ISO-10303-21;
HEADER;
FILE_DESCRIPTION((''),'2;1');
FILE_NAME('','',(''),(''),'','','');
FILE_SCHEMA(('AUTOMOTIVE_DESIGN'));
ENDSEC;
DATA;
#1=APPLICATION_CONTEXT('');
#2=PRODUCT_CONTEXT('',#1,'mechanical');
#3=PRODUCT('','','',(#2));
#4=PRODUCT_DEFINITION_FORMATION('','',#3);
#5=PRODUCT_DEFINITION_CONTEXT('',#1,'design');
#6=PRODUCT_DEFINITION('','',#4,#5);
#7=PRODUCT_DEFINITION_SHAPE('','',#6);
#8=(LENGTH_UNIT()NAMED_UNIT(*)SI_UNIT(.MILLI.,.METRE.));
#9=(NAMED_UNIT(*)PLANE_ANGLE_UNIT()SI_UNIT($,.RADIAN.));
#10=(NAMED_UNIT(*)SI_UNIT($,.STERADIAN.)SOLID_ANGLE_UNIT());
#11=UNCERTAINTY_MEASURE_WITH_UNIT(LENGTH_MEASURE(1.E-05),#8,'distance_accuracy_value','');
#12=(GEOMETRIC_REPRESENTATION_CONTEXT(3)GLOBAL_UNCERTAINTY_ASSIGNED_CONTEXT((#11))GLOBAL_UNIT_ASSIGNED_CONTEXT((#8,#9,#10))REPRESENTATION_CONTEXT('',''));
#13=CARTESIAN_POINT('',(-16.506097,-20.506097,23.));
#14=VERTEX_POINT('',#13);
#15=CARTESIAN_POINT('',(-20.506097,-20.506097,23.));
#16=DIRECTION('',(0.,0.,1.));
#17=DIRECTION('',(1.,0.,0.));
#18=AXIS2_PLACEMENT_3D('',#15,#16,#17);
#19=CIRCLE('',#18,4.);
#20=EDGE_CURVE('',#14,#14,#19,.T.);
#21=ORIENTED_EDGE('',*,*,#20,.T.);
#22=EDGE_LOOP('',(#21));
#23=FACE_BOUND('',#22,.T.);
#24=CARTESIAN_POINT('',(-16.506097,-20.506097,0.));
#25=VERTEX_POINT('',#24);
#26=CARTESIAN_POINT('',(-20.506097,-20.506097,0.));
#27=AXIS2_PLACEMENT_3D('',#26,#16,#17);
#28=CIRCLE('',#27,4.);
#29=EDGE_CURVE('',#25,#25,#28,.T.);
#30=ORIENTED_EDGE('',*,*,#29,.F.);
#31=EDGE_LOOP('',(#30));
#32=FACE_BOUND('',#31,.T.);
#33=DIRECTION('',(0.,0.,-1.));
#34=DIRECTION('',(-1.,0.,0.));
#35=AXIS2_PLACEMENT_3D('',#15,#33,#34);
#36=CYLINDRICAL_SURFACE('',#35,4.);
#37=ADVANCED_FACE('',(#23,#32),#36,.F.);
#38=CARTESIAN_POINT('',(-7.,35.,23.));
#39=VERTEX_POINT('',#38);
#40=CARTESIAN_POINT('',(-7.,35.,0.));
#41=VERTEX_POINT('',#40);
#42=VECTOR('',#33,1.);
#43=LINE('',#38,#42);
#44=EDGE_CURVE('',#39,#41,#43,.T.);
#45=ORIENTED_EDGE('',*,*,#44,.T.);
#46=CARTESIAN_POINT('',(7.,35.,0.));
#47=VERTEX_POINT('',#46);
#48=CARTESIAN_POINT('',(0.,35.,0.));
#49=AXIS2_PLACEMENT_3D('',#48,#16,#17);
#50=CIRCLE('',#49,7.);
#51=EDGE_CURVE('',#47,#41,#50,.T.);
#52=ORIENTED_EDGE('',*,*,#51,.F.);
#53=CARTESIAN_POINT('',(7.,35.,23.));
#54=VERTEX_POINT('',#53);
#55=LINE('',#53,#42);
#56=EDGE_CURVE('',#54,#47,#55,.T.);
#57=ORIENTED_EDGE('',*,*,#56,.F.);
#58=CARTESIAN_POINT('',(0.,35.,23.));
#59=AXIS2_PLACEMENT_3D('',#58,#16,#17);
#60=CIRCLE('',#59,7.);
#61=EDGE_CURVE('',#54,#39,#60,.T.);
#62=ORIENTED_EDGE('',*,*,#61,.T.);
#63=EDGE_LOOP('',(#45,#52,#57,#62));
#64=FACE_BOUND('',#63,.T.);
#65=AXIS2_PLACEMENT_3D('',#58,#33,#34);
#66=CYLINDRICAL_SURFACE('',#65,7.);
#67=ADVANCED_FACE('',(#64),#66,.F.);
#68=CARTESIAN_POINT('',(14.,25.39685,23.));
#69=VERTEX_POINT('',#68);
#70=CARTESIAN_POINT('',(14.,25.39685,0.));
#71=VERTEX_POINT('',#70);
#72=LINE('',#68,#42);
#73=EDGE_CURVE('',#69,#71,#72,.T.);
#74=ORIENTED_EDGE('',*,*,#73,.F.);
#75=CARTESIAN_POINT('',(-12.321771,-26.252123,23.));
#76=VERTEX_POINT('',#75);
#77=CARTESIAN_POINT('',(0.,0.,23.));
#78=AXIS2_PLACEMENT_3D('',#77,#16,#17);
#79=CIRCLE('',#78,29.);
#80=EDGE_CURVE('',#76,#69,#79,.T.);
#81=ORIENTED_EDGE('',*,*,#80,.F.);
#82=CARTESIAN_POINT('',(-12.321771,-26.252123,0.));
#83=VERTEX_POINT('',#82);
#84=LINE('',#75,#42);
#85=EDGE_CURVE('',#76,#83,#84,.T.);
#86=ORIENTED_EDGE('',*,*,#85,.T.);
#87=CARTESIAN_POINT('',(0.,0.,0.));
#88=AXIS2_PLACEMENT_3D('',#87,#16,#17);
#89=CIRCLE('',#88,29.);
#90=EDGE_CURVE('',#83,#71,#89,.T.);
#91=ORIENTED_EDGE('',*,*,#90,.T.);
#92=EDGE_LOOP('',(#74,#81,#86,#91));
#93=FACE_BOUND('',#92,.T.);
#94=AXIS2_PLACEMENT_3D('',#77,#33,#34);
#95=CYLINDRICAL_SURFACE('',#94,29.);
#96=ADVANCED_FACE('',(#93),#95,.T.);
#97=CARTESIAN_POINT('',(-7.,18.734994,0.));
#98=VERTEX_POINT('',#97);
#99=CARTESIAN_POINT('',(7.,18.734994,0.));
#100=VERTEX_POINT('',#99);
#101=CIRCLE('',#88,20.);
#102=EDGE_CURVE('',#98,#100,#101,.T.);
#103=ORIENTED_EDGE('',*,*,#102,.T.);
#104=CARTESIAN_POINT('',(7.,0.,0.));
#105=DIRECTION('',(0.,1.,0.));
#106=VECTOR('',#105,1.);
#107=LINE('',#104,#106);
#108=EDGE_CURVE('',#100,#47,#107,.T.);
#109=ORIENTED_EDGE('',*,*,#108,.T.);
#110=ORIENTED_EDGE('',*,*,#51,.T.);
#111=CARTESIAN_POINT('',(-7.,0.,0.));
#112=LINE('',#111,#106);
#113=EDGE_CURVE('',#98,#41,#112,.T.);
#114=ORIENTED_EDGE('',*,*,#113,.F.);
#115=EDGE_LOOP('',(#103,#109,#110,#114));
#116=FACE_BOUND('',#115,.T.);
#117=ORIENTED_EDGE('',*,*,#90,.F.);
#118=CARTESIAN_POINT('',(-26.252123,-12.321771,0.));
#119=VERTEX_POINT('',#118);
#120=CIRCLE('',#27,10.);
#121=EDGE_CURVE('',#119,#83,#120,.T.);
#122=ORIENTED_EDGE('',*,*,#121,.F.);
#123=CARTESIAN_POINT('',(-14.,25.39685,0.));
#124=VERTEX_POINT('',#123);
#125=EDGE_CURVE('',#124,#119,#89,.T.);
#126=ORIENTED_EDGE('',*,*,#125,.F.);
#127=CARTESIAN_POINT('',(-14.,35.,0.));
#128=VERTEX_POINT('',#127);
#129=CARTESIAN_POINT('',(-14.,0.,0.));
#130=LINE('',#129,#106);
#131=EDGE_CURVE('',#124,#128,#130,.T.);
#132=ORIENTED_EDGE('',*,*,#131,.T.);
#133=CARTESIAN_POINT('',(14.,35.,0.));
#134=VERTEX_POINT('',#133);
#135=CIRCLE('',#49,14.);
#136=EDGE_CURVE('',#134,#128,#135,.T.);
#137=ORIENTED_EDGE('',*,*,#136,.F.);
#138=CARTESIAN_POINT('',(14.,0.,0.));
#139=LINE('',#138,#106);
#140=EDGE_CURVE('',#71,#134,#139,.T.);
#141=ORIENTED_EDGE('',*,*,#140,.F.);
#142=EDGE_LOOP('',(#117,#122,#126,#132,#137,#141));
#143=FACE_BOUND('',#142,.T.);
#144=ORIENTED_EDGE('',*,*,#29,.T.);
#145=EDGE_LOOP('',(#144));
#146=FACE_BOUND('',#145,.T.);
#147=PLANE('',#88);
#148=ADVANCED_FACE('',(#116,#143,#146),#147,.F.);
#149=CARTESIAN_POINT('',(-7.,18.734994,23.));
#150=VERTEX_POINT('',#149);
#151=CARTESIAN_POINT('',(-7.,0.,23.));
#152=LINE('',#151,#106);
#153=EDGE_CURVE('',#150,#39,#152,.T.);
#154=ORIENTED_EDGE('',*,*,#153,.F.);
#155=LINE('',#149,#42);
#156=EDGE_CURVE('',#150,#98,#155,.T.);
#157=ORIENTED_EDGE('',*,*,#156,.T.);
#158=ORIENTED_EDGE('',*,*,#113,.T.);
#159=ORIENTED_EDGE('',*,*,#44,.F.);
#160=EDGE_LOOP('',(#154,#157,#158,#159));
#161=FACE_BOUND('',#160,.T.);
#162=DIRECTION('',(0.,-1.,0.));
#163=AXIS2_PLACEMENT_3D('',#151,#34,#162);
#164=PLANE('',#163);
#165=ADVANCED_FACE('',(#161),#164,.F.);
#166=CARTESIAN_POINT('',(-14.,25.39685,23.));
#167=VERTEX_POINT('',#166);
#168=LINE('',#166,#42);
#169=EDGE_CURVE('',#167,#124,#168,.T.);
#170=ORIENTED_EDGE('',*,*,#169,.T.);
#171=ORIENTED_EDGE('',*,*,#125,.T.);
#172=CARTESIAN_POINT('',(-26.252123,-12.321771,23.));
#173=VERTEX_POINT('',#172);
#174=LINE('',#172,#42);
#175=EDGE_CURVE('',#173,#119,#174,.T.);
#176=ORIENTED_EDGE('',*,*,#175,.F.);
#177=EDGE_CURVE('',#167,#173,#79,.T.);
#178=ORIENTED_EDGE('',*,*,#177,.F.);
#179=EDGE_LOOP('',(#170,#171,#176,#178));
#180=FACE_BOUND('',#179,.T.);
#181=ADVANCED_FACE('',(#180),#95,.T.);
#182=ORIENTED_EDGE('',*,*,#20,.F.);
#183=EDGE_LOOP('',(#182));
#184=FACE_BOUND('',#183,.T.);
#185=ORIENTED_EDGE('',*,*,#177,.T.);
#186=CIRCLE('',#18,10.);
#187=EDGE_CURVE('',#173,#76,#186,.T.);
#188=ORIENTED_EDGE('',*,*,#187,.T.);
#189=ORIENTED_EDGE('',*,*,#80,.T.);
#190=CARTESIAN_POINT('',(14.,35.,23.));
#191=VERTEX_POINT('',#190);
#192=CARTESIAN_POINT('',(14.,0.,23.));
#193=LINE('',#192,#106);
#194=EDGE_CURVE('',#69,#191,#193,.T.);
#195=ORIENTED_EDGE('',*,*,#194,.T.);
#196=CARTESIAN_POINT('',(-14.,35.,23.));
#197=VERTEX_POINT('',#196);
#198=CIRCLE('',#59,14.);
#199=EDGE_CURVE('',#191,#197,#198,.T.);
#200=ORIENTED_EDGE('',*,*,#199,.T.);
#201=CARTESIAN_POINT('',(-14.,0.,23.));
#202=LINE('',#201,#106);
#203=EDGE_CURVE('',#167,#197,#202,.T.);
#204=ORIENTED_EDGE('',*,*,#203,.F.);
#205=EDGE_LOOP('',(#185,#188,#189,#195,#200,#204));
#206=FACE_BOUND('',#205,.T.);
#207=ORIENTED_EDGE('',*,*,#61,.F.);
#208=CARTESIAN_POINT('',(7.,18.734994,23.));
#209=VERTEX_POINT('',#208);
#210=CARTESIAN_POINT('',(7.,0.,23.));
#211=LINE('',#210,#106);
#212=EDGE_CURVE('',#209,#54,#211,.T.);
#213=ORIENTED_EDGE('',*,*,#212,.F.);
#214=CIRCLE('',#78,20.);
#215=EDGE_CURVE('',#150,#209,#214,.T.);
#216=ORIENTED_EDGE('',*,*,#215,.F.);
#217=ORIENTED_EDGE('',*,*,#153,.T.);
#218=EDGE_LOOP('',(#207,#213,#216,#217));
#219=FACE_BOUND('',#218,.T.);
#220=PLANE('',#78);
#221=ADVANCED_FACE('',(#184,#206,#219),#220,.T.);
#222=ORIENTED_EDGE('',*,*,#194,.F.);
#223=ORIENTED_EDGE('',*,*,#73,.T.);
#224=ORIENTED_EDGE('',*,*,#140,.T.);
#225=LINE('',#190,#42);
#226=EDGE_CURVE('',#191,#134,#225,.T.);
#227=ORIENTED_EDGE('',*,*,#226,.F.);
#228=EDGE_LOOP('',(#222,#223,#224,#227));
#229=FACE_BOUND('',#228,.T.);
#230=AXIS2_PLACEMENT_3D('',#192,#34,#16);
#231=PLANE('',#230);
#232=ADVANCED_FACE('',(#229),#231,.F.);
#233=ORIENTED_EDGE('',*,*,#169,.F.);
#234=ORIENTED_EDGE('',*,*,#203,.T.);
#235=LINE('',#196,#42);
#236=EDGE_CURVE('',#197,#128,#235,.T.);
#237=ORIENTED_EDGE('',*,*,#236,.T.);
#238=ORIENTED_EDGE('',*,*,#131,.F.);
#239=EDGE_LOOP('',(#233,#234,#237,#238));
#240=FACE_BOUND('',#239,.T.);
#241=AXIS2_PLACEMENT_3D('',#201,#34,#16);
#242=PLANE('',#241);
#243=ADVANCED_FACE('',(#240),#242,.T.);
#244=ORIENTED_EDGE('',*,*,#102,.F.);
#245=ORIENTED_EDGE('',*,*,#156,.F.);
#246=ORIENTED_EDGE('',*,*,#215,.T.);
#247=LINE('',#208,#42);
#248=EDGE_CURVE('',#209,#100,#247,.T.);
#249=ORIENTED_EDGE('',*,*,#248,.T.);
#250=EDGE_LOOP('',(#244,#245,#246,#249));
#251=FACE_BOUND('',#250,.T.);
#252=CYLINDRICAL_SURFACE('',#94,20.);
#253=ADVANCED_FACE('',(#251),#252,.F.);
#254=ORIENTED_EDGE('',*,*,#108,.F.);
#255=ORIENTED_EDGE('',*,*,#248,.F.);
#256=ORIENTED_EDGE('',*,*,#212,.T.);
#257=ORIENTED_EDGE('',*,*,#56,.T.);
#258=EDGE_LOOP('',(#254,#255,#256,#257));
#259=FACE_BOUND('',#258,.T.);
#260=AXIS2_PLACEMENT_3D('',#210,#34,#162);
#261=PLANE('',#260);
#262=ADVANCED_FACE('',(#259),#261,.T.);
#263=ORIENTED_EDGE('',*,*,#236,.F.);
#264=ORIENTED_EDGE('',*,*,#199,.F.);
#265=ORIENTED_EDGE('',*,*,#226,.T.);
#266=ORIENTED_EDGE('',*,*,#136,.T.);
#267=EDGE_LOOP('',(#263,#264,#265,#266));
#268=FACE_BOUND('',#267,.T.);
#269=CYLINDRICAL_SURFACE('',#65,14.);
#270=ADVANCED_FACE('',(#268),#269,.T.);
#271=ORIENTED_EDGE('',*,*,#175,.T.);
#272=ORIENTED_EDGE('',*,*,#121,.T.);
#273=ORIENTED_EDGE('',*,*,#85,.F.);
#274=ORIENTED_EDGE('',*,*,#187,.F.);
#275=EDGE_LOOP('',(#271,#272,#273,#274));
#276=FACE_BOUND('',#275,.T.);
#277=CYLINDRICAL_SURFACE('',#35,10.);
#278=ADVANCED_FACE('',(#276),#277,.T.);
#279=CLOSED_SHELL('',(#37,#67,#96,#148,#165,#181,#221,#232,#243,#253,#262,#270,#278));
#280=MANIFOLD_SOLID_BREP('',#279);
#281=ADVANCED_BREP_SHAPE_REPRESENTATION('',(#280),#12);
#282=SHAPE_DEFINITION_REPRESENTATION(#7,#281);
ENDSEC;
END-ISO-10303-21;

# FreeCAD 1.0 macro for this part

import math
import FreeCAD as App
import Part
import Sketcher

V = App.Vector
Q = App.Units.Quantity

doc = App.newDocument("Part")
body = doc.addObject("PartDesign::Body", "Body")

sketch1 = body.newObject("Sketcher::SketchObject", "Sketch")
sketch1.AttachmentSupport = (doc.getObject("XY_Plane"), [""])
sketch1.MapMode = "FlatFace"
sketch1.addGeometry([
    Part.LineSegment(V(14, 25.39685, 0), V(14, 35, 0)),
    Part.ArcOfCircle(Part.Circle(V(0, 35, 0), V(0, 0, 1), 14), math.radians(0), math.radians(180)),
    Part.LineSegment(V(-14, 35, 0), V(-14, 25.39685, 0)),
    Part.ArcOfCircle(Part.Circle(V(0, 0, 0), V(0, 0, 1), 29), math.radians(118.865727), math.radians(205.143616)),
    Part.ArcOfCircle(Part.Circle(V(-20.506097, -20.506097, 0), V(0, 0, 1), 10), math.radians(125.071808), math.radians(324.928192)),
    Part.ArcOfCircle(Part.Circle(V(0, 0, 0), V(0, 0, 1), 29), math.radians(-115.143616), math.radians(61.134273)),
    Part.Circle(V(-20.506097, -20.506097, 0), V(0, 0, 1), 4),
    Part.ArcOfCircle(Part.Circle(V(0, 0, 0), V(0, 0, 1), 20), math.radians(110.487315), math.radians(429.512685)),
    Part.LineSegment(V(-7, 18.734994, 0), V(-7, 35, 0)),
    Part.ArcOfCircle(Part.Circle(V(0, 35, 0), V(0, 0, 1), 7), math.radians(0), math.radians(180)),
    Part.LineSegment(V(7, 35, 0), V(7, 18.734994, 0)),
], False)
sketch1.addConstraint([
    Sketcher.Constraint("Tangent", 0, 2, 1, 1),
    Sketcher.Constraint("Tangent", 1, 2, 2, 1),
    Sketcher.Constraint("Coincident", 2, 2, 3, 1),
    Sketcher.Constraint("Coincident", 3, 2, 4, 1),
    Sketcher.Constraint("Coincident", 4, 2, 5, 1),
    Sketcher.Constraint("Coincident", 5, 2, 0, 1),
    Sketcher.Constraint("Coincident", 7, 1, 8, 1),
    Sketcher.Constraint("Tangent", 8, 2, 9, 2),
    Sketcher.Constraint("Tangent", 9, 1, 10, 1),
    Sketcher.Constraint("Coincident", 10, 2, 7, 2),
    Sketcher.Constraint("Vertical", 0),
    Sketcher.Constraint("Vertical", 2),
    Sketcher.Constraint("Vertical", 8),
    Sketcher.Constraint("Vertical", 10),
    Sketcher.Constraint("Coincident", 3, 3, -1, 1),
    Sketcher.Constraint("Coincident", 5, 3, -1, 1),
    Sketcher.Constraint("Coincident", 7, 3, -1, 1),
    Sketcher.Constraint("Coincident", 6, 3, 4, 3),
    Sketcher.Constraint("Coincident", 9, 3, 1, 3),
    Sketcher.Constraint("Equal", 3, 5),
    Sketcher.Constraint("PointOnObject", 1, 3, -2),
    Sketcher.Constraint("Diameter", 6, Q("8 mm")),
    Sketcher.Constraint("Radius", 1, Q("14 mm")),
    Sketcher.Constraint("Radius", 3, Q("29 mm")),
    Sketcher.Constraint("Radius", 4, Q("10 mm")),
    Sketcher.Constraint("Radius", 7, Q("20 mm")),
    Sketcher.Constraint("Radius", 9, Q("7 mm")),
    Sketcher.Constraint("DistanceY", -1, 1, 1, 3, Q("35 mm")),
    Sketcher.Constraint("DistanceY", 3, 2, -1, 1, Q("12.321771 mm")),
    Sketcher.Constraint("DistanceX", 4, 2, -1, 1, Q("12.321771 mm")),
])
pad1 = body.newObject("PartDesign::Pad", "Pad")
pad1.Profile = sketch1
pad1.Length = 23

doc.recompute()
